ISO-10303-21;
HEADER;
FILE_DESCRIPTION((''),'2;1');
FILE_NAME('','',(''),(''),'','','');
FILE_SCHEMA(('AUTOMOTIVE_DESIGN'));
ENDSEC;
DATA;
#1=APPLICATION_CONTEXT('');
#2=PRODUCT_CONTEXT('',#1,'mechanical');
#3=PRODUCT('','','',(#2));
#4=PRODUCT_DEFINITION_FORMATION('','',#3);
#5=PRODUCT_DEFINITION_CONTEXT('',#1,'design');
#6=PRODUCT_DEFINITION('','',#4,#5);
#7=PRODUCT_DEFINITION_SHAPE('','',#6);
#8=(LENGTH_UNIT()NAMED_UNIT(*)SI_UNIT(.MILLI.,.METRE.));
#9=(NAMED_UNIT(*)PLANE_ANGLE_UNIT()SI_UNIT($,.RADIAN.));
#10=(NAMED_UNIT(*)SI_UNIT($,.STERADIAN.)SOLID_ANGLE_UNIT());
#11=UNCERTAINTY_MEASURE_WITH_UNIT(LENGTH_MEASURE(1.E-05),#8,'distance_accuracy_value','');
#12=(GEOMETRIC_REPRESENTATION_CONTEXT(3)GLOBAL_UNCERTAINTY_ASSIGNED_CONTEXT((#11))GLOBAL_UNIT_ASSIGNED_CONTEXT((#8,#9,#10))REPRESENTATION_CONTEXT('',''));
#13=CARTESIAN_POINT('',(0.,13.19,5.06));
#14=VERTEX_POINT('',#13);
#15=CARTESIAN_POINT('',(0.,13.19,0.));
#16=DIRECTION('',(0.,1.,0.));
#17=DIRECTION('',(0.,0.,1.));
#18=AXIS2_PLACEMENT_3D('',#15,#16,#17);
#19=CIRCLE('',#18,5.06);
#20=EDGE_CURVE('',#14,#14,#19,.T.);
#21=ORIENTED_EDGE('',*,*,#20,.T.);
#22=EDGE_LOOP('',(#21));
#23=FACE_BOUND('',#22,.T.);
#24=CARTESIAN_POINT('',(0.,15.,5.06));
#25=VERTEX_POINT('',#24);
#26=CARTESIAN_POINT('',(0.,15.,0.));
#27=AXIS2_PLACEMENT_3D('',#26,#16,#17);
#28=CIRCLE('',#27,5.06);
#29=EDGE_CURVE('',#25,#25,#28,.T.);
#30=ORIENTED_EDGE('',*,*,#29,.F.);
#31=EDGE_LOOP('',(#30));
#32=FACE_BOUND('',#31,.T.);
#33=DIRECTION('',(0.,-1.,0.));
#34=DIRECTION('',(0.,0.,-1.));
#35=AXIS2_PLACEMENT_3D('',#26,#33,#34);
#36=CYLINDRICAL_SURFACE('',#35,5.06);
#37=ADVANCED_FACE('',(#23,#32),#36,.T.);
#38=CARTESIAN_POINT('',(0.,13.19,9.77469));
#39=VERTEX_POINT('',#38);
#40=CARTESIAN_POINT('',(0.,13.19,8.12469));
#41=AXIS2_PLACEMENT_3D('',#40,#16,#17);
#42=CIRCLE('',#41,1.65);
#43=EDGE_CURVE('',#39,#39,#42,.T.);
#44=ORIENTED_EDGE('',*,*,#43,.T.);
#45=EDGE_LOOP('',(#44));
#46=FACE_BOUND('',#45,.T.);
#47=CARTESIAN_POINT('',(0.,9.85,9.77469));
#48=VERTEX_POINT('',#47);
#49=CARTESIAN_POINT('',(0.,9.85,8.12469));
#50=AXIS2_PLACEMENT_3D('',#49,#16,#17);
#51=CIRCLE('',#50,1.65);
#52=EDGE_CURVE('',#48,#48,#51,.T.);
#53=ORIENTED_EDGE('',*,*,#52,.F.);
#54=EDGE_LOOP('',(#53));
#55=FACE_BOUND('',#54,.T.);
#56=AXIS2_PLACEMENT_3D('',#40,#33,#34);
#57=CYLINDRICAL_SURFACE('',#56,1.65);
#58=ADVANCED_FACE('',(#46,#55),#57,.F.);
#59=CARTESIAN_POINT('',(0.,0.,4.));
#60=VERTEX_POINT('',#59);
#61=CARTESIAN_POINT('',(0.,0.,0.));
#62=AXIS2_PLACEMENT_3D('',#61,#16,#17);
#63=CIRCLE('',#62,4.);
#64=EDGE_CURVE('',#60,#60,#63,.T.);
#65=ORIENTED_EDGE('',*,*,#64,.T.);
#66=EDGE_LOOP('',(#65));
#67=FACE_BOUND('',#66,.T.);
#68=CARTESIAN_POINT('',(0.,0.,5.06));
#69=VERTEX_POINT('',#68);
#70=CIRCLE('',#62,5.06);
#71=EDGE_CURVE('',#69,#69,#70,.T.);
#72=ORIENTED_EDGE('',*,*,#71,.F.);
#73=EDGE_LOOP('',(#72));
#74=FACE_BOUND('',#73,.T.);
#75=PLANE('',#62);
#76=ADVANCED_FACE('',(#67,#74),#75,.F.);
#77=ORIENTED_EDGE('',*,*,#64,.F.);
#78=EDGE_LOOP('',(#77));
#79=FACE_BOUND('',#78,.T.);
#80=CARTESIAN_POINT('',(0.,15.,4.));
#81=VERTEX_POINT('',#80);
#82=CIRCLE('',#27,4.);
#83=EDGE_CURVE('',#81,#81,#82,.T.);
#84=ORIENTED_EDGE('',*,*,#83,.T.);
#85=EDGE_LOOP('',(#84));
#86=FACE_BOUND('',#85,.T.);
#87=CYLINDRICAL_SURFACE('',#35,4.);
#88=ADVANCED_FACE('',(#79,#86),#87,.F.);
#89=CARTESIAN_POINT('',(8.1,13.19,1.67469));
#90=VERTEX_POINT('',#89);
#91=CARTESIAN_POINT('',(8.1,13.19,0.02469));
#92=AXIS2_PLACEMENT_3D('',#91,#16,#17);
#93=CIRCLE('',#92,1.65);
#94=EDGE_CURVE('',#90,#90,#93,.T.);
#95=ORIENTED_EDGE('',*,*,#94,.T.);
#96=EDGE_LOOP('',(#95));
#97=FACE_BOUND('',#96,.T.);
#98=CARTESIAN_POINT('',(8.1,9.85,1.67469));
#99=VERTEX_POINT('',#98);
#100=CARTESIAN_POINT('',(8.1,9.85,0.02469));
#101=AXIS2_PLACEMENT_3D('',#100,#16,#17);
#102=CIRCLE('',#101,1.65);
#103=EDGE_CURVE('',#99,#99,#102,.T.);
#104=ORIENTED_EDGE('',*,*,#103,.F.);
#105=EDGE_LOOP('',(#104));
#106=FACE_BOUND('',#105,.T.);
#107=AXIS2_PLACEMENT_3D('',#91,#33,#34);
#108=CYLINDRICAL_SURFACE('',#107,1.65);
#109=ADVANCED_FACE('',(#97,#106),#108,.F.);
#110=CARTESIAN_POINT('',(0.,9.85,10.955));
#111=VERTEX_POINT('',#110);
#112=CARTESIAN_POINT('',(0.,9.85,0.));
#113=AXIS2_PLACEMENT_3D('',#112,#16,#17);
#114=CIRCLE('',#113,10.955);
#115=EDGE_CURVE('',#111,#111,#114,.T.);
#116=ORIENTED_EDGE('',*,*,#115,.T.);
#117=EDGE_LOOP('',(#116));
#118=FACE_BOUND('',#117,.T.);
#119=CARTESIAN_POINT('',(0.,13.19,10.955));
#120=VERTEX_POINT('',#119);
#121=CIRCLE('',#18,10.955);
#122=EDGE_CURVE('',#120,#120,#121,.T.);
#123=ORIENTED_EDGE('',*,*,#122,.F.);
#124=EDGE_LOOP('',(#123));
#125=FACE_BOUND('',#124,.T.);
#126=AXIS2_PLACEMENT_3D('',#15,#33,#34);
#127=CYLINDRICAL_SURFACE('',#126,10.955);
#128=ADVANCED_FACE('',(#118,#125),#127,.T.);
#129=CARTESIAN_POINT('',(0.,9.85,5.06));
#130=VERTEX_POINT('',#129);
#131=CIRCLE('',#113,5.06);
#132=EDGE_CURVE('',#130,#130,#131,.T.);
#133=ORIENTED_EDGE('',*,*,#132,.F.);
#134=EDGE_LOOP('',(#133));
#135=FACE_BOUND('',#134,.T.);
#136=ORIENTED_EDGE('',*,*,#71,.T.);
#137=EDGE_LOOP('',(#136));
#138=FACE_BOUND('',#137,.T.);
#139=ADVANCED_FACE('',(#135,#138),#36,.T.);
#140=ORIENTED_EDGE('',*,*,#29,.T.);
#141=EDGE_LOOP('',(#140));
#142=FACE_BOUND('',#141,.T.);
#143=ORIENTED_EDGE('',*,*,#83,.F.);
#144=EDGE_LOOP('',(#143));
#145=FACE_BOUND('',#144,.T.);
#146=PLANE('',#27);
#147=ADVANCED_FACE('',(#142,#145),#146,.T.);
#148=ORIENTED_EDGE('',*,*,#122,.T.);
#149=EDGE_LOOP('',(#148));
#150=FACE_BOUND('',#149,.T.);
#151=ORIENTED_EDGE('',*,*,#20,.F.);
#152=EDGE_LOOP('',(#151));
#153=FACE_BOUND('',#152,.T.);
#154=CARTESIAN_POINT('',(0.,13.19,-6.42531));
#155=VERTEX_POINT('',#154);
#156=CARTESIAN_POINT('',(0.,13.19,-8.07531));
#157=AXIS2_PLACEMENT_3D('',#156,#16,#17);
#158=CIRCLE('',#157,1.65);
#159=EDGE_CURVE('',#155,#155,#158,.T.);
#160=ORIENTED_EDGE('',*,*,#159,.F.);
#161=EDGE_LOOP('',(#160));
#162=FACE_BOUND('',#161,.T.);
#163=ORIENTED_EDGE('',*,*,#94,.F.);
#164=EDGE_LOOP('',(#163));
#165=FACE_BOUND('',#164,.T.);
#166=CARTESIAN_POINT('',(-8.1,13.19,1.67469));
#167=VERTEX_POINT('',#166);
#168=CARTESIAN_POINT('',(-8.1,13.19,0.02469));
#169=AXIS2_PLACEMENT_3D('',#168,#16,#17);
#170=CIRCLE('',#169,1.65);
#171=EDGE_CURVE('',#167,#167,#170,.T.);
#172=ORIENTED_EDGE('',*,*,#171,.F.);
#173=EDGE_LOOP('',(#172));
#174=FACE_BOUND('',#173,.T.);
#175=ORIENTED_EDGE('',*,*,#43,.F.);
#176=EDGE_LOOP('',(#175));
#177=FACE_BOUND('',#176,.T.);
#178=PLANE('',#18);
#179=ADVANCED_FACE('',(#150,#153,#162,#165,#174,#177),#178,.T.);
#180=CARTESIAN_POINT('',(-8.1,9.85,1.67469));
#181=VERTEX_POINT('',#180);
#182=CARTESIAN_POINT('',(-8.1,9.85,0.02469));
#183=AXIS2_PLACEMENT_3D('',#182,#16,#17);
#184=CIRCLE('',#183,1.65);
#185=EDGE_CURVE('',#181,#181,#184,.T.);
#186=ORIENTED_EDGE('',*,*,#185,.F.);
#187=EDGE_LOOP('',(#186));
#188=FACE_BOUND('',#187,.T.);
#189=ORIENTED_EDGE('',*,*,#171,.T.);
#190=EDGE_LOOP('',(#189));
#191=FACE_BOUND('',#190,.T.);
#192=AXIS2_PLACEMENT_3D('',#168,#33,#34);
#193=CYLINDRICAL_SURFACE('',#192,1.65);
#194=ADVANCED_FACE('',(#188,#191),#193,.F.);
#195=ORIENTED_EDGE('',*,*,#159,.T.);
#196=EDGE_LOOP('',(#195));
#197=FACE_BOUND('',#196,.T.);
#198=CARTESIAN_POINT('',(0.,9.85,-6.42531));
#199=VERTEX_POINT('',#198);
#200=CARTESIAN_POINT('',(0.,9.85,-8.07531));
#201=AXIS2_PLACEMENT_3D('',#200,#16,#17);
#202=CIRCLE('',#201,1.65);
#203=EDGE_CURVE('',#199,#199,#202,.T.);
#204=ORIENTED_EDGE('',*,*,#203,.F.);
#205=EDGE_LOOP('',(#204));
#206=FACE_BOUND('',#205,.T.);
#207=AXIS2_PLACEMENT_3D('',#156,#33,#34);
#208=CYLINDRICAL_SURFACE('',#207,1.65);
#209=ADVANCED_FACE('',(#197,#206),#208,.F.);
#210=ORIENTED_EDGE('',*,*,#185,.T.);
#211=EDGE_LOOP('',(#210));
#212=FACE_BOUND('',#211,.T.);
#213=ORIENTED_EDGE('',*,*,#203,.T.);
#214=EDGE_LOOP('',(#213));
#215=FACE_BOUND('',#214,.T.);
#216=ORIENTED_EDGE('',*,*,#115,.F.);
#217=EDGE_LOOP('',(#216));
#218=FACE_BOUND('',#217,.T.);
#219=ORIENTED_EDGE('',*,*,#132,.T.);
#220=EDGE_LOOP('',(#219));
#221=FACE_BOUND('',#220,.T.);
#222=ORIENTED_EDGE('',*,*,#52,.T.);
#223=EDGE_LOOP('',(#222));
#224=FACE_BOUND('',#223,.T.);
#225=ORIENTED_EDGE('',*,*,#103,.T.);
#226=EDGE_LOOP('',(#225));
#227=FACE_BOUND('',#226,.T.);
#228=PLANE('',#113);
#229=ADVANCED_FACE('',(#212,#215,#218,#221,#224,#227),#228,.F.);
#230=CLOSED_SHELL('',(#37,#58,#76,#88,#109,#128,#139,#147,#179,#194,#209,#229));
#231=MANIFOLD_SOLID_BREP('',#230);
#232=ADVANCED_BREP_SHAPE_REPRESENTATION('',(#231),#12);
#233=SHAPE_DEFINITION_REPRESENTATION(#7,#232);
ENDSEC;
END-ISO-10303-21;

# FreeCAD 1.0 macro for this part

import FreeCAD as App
import Part
import Sketcher
Q = App.Units.Quantity

doc = App.newDocument("Part")
body = doc.addObject("PartDesign::Body", "Body")

# Sketch on XZ plane
sketch1 = body.newObject("Sketcher::SketchObject", "Sketch")
sketch1.AttachmentSupport = (doc.getObject("XZ_Plane"), [""])
sketch1.MapMode = "FlatFace"
sketch1.addGeometry(Part.Circle(App.Vector(0, 0, 0), App.Vector(0, 0, 1), 5.06), False)
sketch1.addGeometry(Part.Circle(App.Vector(0, 0, 0), App.Vector(0, 0, 1), 4), False)
sketch1.addConstraint(Sketcher.Constraint("Coincident", 0, 3, -1, 1))
sketch1.addConstraint(Sketcher.Constraint("Coincident", 1, 3, -1, 1))
sketch1.addConstraint(Sketcher.Constraint("Diameter", 1, Q("8 mm")))
sketch1.addConstraint(Sketcher.Constraint("Diameter", 0, Q("10.12 mm")))
pad1 = body.newObject("PartDesign::Pad", "Pad")
pad1.Profile = sketch1
pad1.Length = 15
pad1.Reversed = True

# Sketch on XZ plane
sketch2 = body.newObject("Sketcher::SketchObject", "Sketch001")
sketch2.AttachmentSupport = (doc.getObject("XZ_Plane"), [""])
sketch2.MapMode = "FlatFace"
sketch2.AttachmentOffset = App.Placement(App.Vector(0, 0, -9.85), App.Rotation())
sketch2.addGeometry(Part.Circle(App.Vector(0, 0, 0), App.Vector(0, 0, 1), 10.955), False)
sketch2.addGeometry(Part.Circle(App.Vector(0, -8.07531, 0), App.Vector(0, 0, 1), 1.65), False)
sketch2.addGeometry(Part.Circle(App.Vector(-8.1, 0.02469, 0), App.Vector(0, 0, 1), 1.65), False)
sketch2.addGeometry(Part.Circle(App.Vector(0, 0, 0), App.Vector(0, 0, 1), 5.06), False)
sketch2.addGeometry(Part.Circle(App.Vector(0, 8.12469, 0), App.Vector(0, 0, 1), 1.65), False)
sketch2.addGeometry(Part.Circle(App.Vector(8.1, 0.02469, 0), App.Vector(0, 0, 1), 1.65), False)
sketch2.addConstraint(Sketcher.Constraint("Coincident", 0, 3, -1, 1))
sketch2.addConstraint(Sketcher.Constraint("Coincident", 3, 3, -1, 1))
sketch2.addConstraint(Sketcher.Constraint("Equal", 1, 2))
sketch2.addConstraint(Sketcher.Constraint("Equal", 2, 4))
sketch2.addConstraint(Sketcher.Constraint("Equal", 4, 5))
sketch2.addConstraint(Sketcher.Constraint("Symmetric", 2, 3, 5, 3, -2))
sketch2.addConstraint(Sketcher.Constraint("PointOnObject", 1, 3, -2))
sketch2.addConstraint(Sketcher.Constraint("PointOnObject", 4, 3, -2))
sketch2.addConstraint(Sketcher.Constraint("Diameter", 1, Q("3.3 mm")))
sketch2.addConstraint(Sketcher.Constraint("Diameter", 0, Q("21.91 mm")))
sketch2.addConstraint(Sketcher.Constraint("Diameter", 3, Q("10.12 mm")))
sketch2.addConstraint(Sketcher.Constraint("DistanceX", 2, 3, -1, 1, Q("8.1 mm")))
sketch2.addConstraint(Sketcher.Constraint("DistanceY", 1, 3, 2, 3, Q("8.1 mm")))
sketch2.addConstraint(Sketcher.Constraint("DistanceY", 2, 3, 4, 3, Q("8.1 mm")))
sketch2.addConstraint(Sketcher.Constraint("DistanceY", 1, 3, -1, 1, Q("8.07531 mm")))
pad2 = body.newObject("PartDesign::Pad", "Pad001")
pad2.Profile = sketch2
pad2.Length = 3.34
pad2.Reversed = True

doc.recompute()
